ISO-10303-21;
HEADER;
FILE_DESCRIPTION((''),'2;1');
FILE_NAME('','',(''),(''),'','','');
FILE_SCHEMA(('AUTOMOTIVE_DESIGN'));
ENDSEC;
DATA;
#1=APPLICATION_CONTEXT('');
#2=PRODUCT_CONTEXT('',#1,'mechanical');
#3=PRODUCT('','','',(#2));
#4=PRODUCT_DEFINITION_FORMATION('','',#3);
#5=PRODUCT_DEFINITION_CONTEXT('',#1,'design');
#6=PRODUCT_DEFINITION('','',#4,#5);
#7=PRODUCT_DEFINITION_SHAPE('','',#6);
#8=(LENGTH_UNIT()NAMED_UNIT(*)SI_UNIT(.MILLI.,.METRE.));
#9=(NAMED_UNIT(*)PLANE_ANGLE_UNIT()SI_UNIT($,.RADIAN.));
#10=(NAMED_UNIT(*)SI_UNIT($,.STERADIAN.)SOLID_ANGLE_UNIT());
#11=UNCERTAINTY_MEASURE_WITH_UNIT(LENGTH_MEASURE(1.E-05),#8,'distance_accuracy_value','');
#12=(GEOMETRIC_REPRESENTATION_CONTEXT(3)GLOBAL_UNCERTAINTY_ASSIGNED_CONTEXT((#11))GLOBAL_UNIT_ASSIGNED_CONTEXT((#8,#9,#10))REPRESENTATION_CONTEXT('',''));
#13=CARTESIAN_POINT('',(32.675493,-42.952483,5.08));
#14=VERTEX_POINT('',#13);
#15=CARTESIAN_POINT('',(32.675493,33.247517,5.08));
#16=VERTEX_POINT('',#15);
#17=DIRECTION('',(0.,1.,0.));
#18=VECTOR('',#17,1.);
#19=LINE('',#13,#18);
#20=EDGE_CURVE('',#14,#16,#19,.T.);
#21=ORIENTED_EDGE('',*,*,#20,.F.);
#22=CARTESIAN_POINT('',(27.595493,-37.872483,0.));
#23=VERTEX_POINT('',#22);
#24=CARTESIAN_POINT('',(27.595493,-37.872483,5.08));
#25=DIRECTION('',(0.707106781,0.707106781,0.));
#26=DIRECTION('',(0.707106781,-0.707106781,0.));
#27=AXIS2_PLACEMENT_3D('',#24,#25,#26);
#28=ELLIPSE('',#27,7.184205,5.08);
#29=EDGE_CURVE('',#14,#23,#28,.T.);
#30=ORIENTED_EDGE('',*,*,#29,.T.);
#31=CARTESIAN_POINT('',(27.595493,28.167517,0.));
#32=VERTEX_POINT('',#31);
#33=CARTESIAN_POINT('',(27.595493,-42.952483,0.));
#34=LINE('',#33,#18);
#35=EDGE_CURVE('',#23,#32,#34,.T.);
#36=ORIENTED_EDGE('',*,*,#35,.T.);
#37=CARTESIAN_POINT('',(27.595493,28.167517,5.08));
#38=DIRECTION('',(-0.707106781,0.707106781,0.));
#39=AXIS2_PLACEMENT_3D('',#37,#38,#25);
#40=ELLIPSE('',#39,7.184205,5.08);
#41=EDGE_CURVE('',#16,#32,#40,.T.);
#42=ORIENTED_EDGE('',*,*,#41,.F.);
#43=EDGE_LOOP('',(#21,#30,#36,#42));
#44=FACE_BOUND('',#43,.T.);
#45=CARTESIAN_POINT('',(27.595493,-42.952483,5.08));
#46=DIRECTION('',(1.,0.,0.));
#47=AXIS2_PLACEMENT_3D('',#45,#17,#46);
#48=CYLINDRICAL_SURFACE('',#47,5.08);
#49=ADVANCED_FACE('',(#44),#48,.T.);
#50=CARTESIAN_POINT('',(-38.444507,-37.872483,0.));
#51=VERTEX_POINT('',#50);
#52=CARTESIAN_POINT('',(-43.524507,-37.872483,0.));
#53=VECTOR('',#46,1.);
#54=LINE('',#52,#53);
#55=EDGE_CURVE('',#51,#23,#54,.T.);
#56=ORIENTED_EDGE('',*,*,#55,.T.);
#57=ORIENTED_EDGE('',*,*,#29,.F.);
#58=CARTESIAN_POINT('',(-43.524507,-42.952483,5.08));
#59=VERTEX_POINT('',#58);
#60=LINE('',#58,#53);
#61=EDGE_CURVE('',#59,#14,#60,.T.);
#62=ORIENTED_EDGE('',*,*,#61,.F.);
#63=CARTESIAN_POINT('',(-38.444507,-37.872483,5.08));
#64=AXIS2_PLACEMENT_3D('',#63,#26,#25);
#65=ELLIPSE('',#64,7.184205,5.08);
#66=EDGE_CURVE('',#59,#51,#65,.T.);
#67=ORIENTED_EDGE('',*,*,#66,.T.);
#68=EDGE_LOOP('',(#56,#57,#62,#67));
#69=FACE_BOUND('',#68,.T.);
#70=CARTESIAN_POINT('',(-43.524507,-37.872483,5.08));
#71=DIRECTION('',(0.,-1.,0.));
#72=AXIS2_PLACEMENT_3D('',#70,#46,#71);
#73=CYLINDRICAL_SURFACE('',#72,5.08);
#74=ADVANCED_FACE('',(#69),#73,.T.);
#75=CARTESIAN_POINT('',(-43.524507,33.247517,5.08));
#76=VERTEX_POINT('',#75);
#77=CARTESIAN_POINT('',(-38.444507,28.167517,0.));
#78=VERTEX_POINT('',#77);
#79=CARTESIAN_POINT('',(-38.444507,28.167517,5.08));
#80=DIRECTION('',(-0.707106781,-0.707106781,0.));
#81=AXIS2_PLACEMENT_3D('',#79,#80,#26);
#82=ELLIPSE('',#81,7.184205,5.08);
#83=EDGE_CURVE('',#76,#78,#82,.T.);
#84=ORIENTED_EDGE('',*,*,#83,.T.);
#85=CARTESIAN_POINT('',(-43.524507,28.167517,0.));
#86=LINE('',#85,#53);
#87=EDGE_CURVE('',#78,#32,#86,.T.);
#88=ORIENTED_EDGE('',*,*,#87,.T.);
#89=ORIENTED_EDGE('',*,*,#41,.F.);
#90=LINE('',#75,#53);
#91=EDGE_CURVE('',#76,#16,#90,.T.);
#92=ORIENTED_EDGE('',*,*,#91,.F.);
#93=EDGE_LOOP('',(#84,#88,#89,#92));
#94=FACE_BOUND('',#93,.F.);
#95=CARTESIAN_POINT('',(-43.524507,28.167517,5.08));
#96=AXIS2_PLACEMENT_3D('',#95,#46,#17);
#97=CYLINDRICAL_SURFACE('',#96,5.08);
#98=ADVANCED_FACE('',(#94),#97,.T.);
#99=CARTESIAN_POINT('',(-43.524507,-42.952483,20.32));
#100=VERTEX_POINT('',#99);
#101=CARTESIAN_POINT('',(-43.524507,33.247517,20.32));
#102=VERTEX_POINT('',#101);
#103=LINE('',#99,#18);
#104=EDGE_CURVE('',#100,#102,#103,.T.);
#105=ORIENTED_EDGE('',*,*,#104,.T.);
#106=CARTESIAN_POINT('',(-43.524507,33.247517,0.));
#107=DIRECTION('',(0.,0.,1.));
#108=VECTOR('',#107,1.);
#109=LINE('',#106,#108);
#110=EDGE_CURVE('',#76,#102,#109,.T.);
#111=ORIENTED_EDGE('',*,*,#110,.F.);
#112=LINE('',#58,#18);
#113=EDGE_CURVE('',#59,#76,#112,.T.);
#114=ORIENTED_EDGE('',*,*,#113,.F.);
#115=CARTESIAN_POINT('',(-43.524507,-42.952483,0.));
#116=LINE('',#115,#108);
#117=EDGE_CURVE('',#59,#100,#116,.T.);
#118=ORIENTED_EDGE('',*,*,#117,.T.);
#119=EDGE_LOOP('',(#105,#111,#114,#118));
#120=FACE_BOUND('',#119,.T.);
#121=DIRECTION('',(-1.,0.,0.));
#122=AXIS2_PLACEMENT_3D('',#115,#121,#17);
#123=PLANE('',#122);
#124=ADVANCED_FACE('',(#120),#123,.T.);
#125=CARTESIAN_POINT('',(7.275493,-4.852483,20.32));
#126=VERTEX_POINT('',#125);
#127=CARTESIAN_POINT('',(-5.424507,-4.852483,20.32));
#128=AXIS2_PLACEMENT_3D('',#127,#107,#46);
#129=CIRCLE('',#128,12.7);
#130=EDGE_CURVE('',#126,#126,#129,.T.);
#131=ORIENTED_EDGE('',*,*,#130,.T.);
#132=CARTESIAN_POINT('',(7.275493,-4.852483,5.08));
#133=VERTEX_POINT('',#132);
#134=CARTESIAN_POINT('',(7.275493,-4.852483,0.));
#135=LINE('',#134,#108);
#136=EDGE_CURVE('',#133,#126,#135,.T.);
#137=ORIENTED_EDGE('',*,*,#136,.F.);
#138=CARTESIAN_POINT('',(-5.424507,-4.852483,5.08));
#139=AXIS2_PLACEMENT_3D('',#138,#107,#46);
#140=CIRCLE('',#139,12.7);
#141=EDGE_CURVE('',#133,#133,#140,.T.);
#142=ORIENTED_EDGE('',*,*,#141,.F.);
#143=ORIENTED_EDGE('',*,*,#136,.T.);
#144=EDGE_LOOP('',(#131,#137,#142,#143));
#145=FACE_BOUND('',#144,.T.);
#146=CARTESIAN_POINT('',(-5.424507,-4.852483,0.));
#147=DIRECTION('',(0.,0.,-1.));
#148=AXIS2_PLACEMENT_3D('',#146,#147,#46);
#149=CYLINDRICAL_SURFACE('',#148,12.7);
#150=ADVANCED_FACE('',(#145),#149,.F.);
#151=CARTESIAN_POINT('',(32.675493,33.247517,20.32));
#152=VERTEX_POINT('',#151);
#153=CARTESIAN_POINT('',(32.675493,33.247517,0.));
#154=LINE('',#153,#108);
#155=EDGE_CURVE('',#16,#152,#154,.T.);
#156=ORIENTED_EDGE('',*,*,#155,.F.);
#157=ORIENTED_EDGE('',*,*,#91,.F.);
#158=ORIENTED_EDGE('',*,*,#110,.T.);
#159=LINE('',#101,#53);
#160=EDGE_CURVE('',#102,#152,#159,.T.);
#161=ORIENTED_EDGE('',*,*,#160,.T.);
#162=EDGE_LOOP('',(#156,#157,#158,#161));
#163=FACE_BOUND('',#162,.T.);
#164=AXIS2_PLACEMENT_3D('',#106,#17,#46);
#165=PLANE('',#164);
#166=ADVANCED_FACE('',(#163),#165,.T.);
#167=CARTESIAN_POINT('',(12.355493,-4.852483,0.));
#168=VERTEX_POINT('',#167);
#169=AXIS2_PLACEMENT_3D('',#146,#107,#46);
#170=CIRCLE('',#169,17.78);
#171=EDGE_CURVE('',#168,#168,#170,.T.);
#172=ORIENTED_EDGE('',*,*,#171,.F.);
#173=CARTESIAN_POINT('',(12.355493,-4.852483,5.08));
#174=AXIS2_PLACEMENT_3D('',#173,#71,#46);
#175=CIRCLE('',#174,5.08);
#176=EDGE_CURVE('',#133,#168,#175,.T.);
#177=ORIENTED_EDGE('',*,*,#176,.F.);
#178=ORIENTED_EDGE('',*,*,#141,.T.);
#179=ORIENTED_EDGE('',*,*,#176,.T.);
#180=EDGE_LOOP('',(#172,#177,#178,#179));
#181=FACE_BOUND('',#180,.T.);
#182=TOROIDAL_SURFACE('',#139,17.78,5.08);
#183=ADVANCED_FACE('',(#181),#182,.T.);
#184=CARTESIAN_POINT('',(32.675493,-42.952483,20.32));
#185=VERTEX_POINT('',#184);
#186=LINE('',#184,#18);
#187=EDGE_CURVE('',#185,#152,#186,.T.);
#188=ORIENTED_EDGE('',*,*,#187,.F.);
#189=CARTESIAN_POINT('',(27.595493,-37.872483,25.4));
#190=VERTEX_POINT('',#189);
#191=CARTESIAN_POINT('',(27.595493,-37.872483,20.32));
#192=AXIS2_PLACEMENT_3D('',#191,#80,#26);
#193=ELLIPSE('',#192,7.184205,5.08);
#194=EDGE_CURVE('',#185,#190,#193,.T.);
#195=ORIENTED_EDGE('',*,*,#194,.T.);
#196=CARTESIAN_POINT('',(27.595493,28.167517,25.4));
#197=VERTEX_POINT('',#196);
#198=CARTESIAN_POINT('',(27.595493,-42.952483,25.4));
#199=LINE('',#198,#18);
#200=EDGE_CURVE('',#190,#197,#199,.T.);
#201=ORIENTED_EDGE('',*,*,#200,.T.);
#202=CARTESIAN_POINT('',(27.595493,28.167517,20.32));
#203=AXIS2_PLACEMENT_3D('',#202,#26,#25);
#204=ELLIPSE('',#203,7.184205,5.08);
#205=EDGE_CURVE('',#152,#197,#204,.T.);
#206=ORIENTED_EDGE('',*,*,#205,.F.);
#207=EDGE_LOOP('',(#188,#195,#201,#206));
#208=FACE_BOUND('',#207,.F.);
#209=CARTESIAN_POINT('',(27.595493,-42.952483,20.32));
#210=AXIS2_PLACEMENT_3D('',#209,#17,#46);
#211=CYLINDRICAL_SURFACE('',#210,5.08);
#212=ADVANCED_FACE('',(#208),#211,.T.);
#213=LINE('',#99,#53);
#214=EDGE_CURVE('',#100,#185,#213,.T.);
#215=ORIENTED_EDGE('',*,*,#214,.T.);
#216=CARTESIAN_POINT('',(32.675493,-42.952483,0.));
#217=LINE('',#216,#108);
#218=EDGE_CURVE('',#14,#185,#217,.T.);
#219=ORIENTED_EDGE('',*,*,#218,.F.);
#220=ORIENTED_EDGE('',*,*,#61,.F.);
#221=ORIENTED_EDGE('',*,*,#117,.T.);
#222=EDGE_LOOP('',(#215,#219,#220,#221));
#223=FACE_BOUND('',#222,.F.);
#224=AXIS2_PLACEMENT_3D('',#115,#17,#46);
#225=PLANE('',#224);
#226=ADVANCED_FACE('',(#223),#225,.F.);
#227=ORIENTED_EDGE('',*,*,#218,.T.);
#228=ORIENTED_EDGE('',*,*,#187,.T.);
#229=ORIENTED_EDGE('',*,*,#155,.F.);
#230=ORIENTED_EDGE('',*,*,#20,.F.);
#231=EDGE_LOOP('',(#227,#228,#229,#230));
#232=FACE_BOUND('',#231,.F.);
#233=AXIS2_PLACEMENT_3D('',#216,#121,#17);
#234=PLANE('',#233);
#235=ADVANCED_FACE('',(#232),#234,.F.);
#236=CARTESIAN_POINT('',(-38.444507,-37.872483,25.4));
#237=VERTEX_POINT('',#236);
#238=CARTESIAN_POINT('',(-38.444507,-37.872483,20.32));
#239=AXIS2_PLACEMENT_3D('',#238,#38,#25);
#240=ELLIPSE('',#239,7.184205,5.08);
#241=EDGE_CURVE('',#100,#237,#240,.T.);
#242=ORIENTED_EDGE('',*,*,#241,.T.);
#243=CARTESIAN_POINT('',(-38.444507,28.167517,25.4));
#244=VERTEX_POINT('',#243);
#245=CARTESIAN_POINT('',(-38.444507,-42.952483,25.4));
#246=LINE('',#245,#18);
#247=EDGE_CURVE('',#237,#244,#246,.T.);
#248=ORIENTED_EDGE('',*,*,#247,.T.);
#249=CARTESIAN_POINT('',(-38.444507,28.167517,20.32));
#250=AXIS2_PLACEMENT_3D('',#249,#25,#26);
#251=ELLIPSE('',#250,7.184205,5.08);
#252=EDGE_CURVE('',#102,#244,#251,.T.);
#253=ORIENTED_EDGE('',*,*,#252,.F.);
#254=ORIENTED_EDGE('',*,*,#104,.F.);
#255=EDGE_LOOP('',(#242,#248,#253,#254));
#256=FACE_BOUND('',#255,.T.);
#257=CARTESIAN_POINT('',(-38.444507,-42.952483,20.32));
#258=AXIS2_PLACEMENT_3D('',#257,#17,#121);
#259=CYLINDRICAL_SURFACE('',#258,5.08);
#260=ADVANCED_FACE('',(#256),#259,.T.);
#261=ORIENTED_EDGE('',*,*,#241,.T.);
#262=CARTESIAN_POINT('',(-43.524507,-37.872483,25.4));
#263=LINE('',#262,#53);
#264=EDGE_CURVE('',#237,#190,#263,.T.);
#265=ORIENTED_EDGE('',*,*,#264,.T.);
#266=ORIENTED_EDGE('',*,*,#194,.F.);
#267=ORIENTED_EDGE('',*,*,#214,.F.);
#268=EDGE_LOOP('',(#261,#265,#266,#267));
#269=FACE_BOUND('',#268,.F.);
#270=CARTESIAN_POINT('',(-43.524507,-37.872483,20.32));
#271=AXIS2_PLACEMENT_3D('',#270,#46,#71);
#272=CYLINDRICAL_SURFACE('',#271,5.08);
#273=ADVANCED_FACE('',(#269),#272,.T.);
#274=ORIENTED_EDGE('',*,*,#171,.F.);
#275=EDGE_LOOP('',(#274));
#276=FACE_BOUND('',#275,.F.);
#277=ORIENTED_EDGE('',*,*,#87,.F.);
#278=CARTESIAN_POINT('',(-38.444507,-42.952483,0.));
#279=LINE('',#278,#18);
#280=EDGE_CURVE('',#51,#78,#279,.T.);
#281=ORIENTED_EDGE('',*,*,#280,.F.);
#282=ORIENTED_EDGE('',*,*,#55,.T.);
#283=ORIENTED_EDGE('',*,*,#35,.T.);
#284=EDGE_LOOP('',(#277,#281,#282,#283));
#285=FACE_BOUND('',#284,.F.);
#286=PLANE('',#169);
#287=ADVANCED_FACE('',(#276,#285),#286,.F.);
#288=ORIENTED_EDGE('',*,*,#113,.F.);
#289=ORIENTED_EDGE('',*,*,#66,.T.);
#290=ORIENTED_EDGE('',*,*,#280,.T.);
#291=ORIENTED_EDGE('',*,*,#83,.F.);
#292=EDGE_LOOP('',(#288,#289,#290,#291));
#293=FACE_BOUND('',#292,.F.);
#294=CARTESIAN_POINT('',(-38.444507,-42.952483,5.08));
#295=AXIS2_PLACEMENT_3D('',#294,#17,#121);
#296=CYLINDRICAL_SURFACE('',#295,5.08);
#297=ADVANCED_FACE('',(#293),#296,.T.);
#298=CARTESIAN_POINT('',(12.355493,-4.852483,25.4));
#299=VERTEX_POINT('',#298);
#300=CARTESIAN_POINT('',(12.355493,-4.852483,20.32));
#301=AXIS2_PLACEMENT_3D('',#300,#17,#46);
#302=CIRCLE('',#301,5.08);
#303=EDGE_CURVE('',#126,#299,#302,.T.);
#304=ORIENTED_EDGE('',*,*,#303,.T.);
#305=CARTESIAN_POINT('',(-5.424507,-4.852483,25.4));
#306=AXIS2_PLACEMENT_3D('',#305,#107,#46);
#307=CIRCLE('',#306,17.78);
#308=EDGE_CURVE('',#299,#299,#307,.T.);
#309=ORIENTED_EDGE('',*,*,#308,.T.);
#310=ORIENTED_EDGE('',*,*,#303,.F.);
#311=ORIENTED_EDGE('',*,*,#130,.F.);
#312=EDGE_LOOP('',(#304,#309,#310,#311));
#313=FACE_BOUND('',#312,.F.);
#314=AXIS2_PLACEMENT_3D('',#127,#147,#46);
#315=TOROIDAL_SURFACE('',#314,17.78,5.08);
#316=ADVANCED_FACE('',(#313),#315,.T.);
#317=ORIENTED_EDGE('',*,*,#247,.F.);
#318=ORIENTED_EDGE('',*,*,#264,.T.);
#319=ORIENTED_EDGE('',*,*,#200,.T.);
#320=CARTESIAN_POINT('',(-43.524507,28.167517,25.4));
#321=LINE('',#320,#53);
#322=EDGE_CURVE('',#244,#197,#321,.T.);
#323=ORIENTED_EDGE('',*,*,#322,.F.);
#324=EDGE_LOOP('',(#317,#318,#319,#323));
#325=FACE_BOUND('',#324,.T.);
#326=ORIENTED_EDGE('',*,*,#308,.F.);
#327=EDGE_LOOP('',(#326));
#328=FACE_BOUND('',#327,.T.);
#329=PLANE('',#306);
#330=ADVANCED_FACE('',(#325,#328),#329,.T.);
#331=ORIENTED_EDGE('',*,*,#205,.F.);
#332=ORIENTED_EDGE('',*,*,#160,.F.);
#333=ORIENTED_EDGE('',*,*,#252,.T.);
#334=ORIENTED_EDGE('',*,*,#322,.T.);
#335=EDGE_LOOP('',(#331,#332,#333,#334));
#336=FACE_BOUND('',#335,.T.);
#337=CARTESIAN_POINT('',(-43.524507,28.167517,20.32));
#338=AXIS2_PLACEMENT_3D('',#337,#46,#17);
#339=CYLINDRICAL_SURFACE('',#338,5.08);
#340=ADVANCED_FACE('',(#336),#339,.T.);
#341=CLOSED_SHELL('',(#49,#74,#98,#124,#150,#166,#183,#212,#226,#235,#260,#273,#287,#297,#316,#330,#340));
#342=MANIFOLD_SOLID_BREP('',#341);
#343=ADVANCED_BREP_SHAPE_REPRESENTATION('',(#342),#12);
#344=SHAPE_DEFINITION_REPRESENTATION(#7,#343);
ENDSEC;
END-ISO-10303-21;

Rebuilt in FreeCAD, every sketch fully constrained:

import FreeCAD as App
import Part
import Sketcher
from FreeCAD import Vector
Q = App.Units.Quantity


def edges_at(feature, points):
    """Names of the edges that pass closest to the given points."""
    edges = feature.Shape.Edges
    near = lambda p: min(range(len(edges)), key=lambda i: edges[i].distToShape(Part.Vertex(*p))[0])
    return sorted({f"Edge{near(p) + 1}" for p in points})

doc = App.newDocument("Part")
body = doc.addObject("PartDesign::Body", "Body")

sketch1 = body.newObject("Sketcher::SketchObject", "Sketch")
sketch1.AttachmentSupport = (doc.getObject("XY_Plane"), [""])
sketch1.MapMode = "FlatFace"
sketch1.addGeometry([
    Part.LineSegment(Vector(-44, 33, 0), Vector(-44, -43, 0)),
    Part.LineSegment(Vector(-44, -43, 0), Vector(33, -43, 0)),
    Part.LineSegment(Vector(33, -43, 0), Vector(33, 33, 0)),
    Part.LineSegment(Vector(33, 33, 0), Vector(-44, 33, 0)),
    Part.Circle(Vector(-5, -5, 0), Vector(0, 0, 1), 13),
], False)
sketch1.addConstraint([
    Sketcher.Constraint("Coincident", 0, 2, 1, 1),
    Sketcher.Constraint("Coincident", 1, 2, 2, 1),
    Sketcher.Constraint("Coincident", 2, 2, 3, 1),
    Sketcher.Constraint("Coincident", 3, 2, 0, 1),
    Sketcher.Constraint("Vertical", 0),
    Sketcher.Constraint("Horizontal", 1),
    Sketcher.Constraint("Vertical", 2),
    Sketcher.Constraint("Horizontal", 3),
    Sketcher.Constraint("Equal", 3, 0),
    Sketcher.Constraint("Diameter", 4, Q("1 in")),
    Sketcher.Constraint("DistanceX", 1, 1, 1, 2, Q("3 in")),
    Sketcher.Constraint("DistanceX", 0, 2, 4, 3, Q("1.5 in")),
    Sketcher.Constraint("DistanceY", 0, 2, 4, 3, Q("1.5 in")),
    Sketcher.Constraint("DistanceX", 4, 3, -1, 1, Q("5.424507 mm")),
    Sketcher.Constraint("DistanceY", 4, 3, -1, 1, Q("4.852483 mm")),
])
pad1 = body.newObject("PartDesign::Pad", "Pad")
pad1.Profile = sketch1
pad1.Length = Q("1 in")
doc.recompute()

fillet = body.newObject("PartDesign::Fillet", "Fillet")
fillet.Base = (pad1, edges_at(pad1, [
    (-5.425, 33.248, 25.4),
    (-43.525, -4.852, 25.4),
    (-5.425, -42.952, 25.4),
    (32.675, -4.852, 25.4),
    (-18.125, -4.852, 25.4),
    (-5.425, 33.248, 0),
    (-43.525, -4.852, 0),
    (-5.425, -42.952, 0),
    (32.675, -4.852, 0),
    (-18.125, -4.852, 0),
]))
fillet.Radius = Q("0.2 in")

doc.recompute()
